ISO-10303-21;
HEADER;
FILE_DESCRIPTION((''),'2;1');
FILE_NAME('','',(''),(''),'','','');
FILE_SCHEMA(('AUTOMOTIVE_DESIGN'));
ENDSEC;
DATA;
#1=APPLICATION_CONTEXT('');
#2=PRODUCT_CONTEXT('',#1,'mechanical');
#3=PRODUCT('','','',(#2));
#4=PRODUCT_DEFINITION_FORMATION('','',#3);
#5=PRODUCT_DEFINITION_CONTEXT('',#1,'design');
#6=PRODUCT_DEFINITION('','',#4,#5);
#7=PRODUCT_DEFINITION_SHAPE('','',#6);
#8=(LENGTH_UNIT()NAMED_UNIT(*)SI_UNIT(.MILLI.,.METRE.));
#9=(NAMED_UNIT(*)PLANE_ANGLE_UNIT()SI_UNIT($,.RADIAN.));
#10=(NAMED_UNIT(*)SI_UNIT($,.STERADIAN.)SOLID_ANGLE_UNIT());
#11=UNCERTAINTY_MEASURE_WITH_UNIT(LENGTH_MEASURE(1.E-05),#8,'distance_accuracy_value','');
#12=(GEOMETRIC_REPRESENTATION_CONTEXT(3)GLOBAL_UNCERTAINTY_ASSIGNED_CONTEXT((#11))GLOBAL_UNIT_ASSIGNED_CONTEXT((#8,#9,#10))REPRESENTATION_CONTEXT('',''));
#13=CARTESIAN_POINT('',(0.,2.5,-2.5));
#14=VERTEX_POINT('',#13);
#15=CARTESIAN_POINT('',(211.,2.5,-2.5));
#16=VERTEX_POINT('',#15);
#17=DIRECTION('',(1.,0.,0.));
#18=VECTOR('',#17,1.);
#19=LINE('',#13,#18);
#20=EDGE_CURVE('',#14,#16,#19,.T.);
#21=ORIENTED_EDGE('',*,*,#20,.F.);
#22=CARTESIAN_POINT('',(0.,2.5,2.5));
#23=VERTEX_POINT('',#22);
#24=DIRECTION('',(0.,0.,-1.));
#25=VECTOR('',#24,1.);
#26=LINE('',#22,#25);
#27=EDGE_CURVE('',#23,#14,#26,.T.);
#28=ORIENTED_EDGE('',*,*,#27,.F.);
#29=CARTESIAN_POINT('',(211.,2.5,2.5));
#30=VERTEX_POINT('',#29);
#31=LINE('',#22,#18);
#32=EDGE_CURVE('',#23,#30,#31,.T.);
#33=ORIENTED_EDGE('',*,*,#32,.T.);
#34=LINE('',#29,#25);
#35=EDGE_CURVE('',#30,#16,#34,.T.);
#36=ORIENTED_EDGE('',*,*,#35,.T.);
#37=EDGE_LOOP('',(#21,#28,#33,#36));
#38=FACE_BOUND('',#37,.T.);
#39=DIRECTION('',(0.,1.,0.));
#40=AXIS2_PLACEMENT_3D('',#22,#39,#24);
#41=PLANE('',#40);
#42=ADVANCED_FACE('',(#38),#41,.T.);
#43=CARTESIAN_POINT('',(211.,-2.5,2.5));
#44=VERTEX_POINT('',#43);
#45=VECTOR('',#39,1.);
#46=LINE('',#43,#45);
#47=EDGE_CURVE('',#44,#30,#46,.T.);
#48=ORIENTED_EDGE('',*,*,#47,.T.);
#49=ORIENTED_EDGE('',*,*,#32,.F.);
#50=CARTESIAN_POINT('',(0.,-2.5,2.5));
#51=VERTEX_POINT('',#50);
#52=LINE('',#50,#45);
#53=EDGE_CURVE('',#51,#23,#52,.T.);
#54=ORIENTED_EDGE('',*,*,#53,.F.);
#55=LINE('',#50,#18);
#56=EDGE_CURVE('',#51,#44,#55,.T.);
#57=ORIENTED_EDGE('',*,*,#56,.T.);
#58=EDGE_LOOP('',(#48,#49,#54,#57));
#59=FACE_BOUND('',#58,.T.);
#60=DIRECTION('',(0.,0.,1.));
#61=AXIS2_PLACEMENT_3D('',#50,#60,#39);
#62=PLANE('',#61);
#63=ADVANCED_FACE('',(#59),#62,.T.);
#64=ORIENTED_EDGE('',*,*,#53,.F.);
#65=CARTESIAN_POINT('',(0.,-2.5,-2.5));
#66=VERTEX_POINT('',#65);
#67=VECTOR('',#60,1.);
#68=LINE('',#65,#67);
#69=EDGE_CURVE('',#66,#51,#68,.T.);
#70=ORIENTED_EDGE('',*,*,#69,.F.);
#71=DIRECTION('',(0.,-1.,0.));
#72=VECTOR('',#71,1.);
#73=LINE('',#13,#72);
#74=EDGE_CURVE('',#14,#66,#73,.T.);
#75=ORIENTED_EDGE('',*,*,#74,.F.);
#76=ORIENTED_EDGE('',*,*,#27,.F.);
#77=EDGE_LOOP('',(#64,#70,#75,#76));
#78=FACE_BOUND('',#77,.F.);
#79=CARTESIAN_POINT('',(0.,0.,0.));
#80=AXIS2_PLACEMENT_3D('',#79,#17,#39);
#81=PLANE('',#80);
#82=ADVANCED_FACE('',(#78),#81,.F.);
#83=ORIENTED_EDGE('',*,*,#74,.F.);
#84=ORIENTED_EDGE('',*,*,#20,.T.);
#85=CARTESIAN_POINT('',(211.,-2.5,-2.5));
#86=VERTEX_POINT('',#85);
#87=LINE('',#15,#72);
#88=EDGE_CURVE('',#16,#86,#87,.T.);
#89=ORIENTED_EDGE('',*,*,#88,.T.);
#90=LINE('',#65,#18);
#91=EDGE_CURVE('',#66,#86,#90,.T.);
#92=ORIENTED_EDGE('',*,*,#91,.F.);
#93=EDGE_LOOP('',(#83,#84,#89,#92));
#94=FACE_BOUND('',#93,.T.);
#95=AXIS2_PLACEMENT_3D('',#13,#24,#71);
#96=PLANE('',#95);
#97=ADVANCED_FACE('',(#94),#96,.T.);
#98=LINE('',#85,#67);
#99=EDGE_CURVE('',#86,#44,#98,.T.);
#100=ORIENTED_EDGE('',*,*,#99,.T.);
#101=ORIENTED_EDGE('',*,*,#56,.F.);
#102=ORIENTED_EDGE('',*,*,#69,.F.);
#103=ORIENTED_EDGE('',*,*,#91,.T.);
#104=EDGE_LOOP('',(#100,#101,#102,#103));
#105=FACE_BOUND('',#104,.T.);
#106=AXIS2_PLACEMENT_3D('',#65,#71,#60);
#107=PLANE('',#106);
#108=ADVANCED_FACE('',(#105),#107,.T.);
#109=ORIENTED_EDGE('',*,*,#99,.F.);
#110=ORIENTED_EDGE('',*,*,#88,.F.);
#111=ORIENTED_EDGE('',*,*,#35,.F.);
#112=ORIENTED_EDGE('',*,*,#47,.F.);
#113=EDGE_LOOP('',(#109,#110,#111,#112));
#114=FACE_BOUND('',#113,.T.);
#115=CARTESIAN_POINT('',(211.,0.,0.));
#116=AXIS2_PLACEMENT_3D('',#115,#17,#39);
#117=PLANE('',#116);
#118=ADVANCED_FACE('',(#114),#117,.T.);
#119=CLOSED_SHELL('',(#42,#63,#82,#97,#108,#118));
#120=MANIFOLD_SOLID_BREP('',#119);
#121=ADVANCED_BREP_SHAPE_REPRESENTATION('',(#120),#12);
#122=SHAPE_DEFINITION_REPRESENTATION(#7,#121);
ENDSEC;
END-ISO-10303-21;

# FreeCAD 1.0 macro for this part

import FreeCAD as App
import Part
import Sketcher


def add_polygon(sketch, points):
    """Adds a closed chain of lines whose ends are joined by coincident constraints."""
    first, n = sketch.GeometryCount, len(points)
    for a, b in zip(points, points[1:] + points[:1]):
        sketch.addGeometry(Part.LineSegment(App.Vector(*a, 0), App.Vector(*b, 0)), False)
    for i in range(n):
        sketch.addConstraint(Sketcher.Constraint("Coincident", first + i, 2, first + (i + 1) % n, 1))

doc = App.newDocument("Part")
body = doc.addObject("PartDesign::Body", "Body")

# Sketch on YZ plane
sketch1 = body.newObject("Sketcher::SketchObject", "Sketch")
sketch1.AttachmentSupport = (doc.getObject("YZ_Plane"), [""])
sketch1.MapMode = "FlatFace"
add_polygon(sketch1, [(-2, -2), (2, -2), (2, 2), (-2, 2)])  # lines 0-3
sketch1.addConstraint([
    Sketcher.Constraint("Horizontal", 0),
    Sketcher.Constraint("Vertical", 1),
    Sketcher.Constraint("Horizontal", 2),
    Sketcher.Constraint("Vertical", 3),
    Sketcher.Constraint("Symmetric", 0, 2, 2, 2, -1, 1),
    Sketcher.Constraint("Equal", 2, 1),
    Sketcher.Constraint("DistanceX", 0, 1, 0, 2, 5.0),
])
pad1 = body.newObject("PartDesign::Pad", "Pad")
pad1.Profile = sketch1
pad1.Length = 211

doc.recompute()
